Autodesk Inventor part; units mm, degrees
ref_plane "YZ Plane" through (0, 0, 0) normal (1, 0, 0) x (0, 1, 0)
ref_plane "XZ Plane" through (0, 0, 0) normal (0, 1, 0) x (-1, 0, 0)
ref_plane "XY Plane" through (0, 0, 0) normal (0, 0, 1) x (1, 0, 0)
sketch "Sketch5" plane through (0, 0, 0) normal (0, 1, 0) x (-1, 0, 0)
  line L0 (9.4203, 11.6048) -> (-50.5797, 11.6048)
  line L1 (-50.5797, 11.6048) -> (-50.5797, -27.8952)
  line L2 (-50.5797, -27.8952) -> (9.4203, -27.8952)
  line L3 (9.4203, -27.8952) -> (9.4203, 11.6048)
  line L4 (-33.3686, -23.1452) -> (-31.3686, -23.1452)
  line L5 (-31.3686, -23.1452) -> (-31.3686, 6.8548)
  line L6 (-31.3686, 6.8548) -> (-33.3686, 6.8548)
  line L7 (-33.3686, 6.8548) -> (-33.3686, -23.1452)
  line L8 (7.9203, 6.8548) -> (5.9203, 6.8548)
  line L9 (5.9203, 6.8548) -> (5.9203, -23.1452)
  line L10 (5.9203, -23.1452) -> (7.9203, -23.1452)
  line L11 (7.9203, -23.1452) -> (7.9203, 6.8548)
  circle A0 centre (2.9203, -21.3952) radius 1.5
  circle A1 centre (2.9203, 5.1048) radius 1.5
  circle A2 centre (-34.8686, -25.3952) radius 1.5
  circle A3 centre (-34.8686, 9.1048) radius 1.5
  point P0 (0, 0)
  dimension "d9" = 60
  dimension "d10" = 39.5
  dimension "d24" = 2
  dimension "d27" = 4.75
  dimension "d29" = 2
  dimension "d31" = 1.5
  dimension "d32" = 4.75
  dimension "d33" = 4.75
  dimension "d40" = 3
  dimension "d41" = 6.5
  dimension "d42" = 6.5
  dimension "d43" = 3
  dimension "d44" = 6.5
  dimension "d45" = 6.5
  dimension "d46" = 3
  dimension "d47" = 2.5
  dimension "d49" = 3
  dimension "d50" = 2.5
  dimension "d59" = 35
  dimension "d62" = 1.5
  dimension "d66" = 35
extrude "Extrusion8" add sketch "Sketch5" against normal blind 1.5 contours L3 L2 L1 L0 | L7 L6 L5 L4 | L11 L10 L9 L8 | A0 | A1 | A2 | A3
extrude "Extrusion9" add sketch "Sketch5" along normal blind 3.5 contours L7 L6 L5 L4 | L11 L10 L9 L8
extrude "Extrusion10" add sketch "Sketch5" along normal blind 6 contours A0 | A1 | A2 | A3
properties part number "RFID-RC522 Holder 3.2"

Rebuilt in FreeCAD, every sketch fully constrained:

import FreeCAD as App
import Part
import Sketcher
from FreeCAD import Vector


def add_polygon(sketch, points):
    """Adds a closed chain of lines whose ends are joined by coincident constraints."""
    first, n = sketch.GeometryCount, len(points)
    for a, b in zip(points, points[1:] + points[:1]):
        sketch.addGeometry(Part.LineSegment(App.Vector(*a, 0), App.Vector(*b, 0)), False)
    for i in range(n):
        sketch.addConstraint(Sketcher.Constraint("Coincident", first + i, 2, first + (i + 1) % n, 1))

doc = App.newDocument("Part")
body = doc.addObject("PartDesign::Body", "Body")

sketch1 = body.newObject("Sketcher::SketchObject", "Sketch")
sketch1.AttachmentSupport = (doc.getObject("XZ_Plane"), [""])
sketch1.MapMode = "FlatFace"
add_polygon(sketch1, [(-9, -28), (-9, 12), (51, 12), (51, -28)])
sketch1.addConstraint([
    Sketcher.Constraint("Vertical", 0),
    Sketcher.Constraint("Horizontal", 1),
    Sketcher.Constraint("Vertical", 2),
    Sketcher.Constraint("Horizontal", 3),
    Sketcher.Constraint("DistanceX", 1, 1, 1, 2, 60.0),
    Sketcher.Constraint("DistanceY", 0, 1, 0, 2, 39.5),
    Sketcher.Constraint("DistanceX", 0, 2, -1, 1, 9.4203),
    Sketcher.Constraint("DistanceY", -1, 1, 0, 2, 11.6048),
])
pad1 = body.newObject("PartDesign::Pad", "Pad")
pad1.Profile = sketch1
pad1.Length = 1.5

sketch2 = body.newObject("Sketcher::SketchObject", "Sketch001")
sketch2.AttachmentSupport = (doc.getObject("XZ_Plane"), [""])
sketch2.MapMode = "FlatFace"
add_polygon(sketch2, [(33.4, 6.9), (33.4, -23.1), (31.4, -23.1), (31.4, 6.9)])
add_polygon(sketch2, [(-7.9, -23.1), (-7.9, 6.9), (-5.9, 6.9), (-5.9, -23.1)])
sketch2.addConstraint([
    Sketcher.Constraint("Vertical", 0),
    Sketcher.Constraint("Horizontal", 1),
    Sketcher.Constraint("Vertical", 2),
    Sketcher.Constraint("Horizontal", 3),
    Sketcher.Constraint("Vertical", 4),
    Sketcher.Constraint("Horizontal", 5),
    Sketcher.Constraint("Vertical", 6),
    Sketcher.Constraint("Horizontal", 7),
    Sketcher.Constraint("Horizontal", 3, 2, 4, 2),
    Sketcher.Constraint("Horizontal", 1, 2, 6, 2),
    Sketcher.Constraint("Equal", 3, 5),
    Sketcher.Constraint("DistanceX", 1, 2, 1, 1, 2.0),
    Sketcher.Constraint("DistanceY", 0, 2, 0, 1, 30.0),
    Sketcher.Constraint("DistanceX", 4, 2, 2, 2, 39.289),
    Sketcher.Constraint("DistanceX", -1, 1, 0, 2, 33.3686),
    Sketcher.Constraint("DistanceY", 0, 2, -1, 1, 23.1452),
])
pad2 = body.newObject("PartDesign::Pad", "Pad001")
pad2.Profile = sketch2
pad2.Length = 3.5
pad2.Reversed = True

sketch3 = body.newObject("Sketcher::SketchObject", "Sketch002")
sketch3.AttachmentSupport = (doc.getObject("XZ_Plane"), [""])
sketch3.MapMode = "FlatFace"
sketch3.addGeometry([
    Part.Circle(Vector(-2.9, -21.4, 0), Vector(0, 0, 1), 1.5),
    Part.Circle(Vector(-2.9, 5.1, 0), Vector(0, 0, 1), 1.5),
    Part.Circle(Vector(34.9, -25.4, 0), Vector(0, 0, 1), 1.5),
    Part.Circle(Vector(34.9, 9.1, 0), Vector(0, 0, 1), 1.5),
], False)
sketch3.addConstraint([
    Sketcher.Constraint("Equal", 0, 1),
    Sketcher.Constraint("Equal", 1, 2),
    Sketcher.Constraint("Equal", 2, 3),
    Sketcher.Constraint("Vertical", 0, 3, 1, 3),
    Sketcher.Constraint("Vertical", 2, 3, 3, 3),
    Sketcher.Constraint("Diameter", 0, 3.0),
    Sketcher.Constraint("DistanceY", 2, 3, 0, 3, 4.0),
    Sketcher.Constraint("DistanceY", 1, 3, 3, 3, 4.0),
    Sketcher.Constraint("DistanceY", 0, 3, 1, 3, 26.5),
    Sketcher.Constraint("DistanceX", 0, 3, 2, 3, 37.789),
    Sketcher.Constraint("DistanceX", 0, 3, -1, 1, 2.9203),
    Sketcher.Constraint("DistanceY", 0, 3, -1, 1, 21.3952),
])
pad3 = body.newObject("PartDesign::Pad", "Pad002")
pad3.Profile = sketch3
pad3.Length = 6
pad3.Reversed = True

doc.recompute()
